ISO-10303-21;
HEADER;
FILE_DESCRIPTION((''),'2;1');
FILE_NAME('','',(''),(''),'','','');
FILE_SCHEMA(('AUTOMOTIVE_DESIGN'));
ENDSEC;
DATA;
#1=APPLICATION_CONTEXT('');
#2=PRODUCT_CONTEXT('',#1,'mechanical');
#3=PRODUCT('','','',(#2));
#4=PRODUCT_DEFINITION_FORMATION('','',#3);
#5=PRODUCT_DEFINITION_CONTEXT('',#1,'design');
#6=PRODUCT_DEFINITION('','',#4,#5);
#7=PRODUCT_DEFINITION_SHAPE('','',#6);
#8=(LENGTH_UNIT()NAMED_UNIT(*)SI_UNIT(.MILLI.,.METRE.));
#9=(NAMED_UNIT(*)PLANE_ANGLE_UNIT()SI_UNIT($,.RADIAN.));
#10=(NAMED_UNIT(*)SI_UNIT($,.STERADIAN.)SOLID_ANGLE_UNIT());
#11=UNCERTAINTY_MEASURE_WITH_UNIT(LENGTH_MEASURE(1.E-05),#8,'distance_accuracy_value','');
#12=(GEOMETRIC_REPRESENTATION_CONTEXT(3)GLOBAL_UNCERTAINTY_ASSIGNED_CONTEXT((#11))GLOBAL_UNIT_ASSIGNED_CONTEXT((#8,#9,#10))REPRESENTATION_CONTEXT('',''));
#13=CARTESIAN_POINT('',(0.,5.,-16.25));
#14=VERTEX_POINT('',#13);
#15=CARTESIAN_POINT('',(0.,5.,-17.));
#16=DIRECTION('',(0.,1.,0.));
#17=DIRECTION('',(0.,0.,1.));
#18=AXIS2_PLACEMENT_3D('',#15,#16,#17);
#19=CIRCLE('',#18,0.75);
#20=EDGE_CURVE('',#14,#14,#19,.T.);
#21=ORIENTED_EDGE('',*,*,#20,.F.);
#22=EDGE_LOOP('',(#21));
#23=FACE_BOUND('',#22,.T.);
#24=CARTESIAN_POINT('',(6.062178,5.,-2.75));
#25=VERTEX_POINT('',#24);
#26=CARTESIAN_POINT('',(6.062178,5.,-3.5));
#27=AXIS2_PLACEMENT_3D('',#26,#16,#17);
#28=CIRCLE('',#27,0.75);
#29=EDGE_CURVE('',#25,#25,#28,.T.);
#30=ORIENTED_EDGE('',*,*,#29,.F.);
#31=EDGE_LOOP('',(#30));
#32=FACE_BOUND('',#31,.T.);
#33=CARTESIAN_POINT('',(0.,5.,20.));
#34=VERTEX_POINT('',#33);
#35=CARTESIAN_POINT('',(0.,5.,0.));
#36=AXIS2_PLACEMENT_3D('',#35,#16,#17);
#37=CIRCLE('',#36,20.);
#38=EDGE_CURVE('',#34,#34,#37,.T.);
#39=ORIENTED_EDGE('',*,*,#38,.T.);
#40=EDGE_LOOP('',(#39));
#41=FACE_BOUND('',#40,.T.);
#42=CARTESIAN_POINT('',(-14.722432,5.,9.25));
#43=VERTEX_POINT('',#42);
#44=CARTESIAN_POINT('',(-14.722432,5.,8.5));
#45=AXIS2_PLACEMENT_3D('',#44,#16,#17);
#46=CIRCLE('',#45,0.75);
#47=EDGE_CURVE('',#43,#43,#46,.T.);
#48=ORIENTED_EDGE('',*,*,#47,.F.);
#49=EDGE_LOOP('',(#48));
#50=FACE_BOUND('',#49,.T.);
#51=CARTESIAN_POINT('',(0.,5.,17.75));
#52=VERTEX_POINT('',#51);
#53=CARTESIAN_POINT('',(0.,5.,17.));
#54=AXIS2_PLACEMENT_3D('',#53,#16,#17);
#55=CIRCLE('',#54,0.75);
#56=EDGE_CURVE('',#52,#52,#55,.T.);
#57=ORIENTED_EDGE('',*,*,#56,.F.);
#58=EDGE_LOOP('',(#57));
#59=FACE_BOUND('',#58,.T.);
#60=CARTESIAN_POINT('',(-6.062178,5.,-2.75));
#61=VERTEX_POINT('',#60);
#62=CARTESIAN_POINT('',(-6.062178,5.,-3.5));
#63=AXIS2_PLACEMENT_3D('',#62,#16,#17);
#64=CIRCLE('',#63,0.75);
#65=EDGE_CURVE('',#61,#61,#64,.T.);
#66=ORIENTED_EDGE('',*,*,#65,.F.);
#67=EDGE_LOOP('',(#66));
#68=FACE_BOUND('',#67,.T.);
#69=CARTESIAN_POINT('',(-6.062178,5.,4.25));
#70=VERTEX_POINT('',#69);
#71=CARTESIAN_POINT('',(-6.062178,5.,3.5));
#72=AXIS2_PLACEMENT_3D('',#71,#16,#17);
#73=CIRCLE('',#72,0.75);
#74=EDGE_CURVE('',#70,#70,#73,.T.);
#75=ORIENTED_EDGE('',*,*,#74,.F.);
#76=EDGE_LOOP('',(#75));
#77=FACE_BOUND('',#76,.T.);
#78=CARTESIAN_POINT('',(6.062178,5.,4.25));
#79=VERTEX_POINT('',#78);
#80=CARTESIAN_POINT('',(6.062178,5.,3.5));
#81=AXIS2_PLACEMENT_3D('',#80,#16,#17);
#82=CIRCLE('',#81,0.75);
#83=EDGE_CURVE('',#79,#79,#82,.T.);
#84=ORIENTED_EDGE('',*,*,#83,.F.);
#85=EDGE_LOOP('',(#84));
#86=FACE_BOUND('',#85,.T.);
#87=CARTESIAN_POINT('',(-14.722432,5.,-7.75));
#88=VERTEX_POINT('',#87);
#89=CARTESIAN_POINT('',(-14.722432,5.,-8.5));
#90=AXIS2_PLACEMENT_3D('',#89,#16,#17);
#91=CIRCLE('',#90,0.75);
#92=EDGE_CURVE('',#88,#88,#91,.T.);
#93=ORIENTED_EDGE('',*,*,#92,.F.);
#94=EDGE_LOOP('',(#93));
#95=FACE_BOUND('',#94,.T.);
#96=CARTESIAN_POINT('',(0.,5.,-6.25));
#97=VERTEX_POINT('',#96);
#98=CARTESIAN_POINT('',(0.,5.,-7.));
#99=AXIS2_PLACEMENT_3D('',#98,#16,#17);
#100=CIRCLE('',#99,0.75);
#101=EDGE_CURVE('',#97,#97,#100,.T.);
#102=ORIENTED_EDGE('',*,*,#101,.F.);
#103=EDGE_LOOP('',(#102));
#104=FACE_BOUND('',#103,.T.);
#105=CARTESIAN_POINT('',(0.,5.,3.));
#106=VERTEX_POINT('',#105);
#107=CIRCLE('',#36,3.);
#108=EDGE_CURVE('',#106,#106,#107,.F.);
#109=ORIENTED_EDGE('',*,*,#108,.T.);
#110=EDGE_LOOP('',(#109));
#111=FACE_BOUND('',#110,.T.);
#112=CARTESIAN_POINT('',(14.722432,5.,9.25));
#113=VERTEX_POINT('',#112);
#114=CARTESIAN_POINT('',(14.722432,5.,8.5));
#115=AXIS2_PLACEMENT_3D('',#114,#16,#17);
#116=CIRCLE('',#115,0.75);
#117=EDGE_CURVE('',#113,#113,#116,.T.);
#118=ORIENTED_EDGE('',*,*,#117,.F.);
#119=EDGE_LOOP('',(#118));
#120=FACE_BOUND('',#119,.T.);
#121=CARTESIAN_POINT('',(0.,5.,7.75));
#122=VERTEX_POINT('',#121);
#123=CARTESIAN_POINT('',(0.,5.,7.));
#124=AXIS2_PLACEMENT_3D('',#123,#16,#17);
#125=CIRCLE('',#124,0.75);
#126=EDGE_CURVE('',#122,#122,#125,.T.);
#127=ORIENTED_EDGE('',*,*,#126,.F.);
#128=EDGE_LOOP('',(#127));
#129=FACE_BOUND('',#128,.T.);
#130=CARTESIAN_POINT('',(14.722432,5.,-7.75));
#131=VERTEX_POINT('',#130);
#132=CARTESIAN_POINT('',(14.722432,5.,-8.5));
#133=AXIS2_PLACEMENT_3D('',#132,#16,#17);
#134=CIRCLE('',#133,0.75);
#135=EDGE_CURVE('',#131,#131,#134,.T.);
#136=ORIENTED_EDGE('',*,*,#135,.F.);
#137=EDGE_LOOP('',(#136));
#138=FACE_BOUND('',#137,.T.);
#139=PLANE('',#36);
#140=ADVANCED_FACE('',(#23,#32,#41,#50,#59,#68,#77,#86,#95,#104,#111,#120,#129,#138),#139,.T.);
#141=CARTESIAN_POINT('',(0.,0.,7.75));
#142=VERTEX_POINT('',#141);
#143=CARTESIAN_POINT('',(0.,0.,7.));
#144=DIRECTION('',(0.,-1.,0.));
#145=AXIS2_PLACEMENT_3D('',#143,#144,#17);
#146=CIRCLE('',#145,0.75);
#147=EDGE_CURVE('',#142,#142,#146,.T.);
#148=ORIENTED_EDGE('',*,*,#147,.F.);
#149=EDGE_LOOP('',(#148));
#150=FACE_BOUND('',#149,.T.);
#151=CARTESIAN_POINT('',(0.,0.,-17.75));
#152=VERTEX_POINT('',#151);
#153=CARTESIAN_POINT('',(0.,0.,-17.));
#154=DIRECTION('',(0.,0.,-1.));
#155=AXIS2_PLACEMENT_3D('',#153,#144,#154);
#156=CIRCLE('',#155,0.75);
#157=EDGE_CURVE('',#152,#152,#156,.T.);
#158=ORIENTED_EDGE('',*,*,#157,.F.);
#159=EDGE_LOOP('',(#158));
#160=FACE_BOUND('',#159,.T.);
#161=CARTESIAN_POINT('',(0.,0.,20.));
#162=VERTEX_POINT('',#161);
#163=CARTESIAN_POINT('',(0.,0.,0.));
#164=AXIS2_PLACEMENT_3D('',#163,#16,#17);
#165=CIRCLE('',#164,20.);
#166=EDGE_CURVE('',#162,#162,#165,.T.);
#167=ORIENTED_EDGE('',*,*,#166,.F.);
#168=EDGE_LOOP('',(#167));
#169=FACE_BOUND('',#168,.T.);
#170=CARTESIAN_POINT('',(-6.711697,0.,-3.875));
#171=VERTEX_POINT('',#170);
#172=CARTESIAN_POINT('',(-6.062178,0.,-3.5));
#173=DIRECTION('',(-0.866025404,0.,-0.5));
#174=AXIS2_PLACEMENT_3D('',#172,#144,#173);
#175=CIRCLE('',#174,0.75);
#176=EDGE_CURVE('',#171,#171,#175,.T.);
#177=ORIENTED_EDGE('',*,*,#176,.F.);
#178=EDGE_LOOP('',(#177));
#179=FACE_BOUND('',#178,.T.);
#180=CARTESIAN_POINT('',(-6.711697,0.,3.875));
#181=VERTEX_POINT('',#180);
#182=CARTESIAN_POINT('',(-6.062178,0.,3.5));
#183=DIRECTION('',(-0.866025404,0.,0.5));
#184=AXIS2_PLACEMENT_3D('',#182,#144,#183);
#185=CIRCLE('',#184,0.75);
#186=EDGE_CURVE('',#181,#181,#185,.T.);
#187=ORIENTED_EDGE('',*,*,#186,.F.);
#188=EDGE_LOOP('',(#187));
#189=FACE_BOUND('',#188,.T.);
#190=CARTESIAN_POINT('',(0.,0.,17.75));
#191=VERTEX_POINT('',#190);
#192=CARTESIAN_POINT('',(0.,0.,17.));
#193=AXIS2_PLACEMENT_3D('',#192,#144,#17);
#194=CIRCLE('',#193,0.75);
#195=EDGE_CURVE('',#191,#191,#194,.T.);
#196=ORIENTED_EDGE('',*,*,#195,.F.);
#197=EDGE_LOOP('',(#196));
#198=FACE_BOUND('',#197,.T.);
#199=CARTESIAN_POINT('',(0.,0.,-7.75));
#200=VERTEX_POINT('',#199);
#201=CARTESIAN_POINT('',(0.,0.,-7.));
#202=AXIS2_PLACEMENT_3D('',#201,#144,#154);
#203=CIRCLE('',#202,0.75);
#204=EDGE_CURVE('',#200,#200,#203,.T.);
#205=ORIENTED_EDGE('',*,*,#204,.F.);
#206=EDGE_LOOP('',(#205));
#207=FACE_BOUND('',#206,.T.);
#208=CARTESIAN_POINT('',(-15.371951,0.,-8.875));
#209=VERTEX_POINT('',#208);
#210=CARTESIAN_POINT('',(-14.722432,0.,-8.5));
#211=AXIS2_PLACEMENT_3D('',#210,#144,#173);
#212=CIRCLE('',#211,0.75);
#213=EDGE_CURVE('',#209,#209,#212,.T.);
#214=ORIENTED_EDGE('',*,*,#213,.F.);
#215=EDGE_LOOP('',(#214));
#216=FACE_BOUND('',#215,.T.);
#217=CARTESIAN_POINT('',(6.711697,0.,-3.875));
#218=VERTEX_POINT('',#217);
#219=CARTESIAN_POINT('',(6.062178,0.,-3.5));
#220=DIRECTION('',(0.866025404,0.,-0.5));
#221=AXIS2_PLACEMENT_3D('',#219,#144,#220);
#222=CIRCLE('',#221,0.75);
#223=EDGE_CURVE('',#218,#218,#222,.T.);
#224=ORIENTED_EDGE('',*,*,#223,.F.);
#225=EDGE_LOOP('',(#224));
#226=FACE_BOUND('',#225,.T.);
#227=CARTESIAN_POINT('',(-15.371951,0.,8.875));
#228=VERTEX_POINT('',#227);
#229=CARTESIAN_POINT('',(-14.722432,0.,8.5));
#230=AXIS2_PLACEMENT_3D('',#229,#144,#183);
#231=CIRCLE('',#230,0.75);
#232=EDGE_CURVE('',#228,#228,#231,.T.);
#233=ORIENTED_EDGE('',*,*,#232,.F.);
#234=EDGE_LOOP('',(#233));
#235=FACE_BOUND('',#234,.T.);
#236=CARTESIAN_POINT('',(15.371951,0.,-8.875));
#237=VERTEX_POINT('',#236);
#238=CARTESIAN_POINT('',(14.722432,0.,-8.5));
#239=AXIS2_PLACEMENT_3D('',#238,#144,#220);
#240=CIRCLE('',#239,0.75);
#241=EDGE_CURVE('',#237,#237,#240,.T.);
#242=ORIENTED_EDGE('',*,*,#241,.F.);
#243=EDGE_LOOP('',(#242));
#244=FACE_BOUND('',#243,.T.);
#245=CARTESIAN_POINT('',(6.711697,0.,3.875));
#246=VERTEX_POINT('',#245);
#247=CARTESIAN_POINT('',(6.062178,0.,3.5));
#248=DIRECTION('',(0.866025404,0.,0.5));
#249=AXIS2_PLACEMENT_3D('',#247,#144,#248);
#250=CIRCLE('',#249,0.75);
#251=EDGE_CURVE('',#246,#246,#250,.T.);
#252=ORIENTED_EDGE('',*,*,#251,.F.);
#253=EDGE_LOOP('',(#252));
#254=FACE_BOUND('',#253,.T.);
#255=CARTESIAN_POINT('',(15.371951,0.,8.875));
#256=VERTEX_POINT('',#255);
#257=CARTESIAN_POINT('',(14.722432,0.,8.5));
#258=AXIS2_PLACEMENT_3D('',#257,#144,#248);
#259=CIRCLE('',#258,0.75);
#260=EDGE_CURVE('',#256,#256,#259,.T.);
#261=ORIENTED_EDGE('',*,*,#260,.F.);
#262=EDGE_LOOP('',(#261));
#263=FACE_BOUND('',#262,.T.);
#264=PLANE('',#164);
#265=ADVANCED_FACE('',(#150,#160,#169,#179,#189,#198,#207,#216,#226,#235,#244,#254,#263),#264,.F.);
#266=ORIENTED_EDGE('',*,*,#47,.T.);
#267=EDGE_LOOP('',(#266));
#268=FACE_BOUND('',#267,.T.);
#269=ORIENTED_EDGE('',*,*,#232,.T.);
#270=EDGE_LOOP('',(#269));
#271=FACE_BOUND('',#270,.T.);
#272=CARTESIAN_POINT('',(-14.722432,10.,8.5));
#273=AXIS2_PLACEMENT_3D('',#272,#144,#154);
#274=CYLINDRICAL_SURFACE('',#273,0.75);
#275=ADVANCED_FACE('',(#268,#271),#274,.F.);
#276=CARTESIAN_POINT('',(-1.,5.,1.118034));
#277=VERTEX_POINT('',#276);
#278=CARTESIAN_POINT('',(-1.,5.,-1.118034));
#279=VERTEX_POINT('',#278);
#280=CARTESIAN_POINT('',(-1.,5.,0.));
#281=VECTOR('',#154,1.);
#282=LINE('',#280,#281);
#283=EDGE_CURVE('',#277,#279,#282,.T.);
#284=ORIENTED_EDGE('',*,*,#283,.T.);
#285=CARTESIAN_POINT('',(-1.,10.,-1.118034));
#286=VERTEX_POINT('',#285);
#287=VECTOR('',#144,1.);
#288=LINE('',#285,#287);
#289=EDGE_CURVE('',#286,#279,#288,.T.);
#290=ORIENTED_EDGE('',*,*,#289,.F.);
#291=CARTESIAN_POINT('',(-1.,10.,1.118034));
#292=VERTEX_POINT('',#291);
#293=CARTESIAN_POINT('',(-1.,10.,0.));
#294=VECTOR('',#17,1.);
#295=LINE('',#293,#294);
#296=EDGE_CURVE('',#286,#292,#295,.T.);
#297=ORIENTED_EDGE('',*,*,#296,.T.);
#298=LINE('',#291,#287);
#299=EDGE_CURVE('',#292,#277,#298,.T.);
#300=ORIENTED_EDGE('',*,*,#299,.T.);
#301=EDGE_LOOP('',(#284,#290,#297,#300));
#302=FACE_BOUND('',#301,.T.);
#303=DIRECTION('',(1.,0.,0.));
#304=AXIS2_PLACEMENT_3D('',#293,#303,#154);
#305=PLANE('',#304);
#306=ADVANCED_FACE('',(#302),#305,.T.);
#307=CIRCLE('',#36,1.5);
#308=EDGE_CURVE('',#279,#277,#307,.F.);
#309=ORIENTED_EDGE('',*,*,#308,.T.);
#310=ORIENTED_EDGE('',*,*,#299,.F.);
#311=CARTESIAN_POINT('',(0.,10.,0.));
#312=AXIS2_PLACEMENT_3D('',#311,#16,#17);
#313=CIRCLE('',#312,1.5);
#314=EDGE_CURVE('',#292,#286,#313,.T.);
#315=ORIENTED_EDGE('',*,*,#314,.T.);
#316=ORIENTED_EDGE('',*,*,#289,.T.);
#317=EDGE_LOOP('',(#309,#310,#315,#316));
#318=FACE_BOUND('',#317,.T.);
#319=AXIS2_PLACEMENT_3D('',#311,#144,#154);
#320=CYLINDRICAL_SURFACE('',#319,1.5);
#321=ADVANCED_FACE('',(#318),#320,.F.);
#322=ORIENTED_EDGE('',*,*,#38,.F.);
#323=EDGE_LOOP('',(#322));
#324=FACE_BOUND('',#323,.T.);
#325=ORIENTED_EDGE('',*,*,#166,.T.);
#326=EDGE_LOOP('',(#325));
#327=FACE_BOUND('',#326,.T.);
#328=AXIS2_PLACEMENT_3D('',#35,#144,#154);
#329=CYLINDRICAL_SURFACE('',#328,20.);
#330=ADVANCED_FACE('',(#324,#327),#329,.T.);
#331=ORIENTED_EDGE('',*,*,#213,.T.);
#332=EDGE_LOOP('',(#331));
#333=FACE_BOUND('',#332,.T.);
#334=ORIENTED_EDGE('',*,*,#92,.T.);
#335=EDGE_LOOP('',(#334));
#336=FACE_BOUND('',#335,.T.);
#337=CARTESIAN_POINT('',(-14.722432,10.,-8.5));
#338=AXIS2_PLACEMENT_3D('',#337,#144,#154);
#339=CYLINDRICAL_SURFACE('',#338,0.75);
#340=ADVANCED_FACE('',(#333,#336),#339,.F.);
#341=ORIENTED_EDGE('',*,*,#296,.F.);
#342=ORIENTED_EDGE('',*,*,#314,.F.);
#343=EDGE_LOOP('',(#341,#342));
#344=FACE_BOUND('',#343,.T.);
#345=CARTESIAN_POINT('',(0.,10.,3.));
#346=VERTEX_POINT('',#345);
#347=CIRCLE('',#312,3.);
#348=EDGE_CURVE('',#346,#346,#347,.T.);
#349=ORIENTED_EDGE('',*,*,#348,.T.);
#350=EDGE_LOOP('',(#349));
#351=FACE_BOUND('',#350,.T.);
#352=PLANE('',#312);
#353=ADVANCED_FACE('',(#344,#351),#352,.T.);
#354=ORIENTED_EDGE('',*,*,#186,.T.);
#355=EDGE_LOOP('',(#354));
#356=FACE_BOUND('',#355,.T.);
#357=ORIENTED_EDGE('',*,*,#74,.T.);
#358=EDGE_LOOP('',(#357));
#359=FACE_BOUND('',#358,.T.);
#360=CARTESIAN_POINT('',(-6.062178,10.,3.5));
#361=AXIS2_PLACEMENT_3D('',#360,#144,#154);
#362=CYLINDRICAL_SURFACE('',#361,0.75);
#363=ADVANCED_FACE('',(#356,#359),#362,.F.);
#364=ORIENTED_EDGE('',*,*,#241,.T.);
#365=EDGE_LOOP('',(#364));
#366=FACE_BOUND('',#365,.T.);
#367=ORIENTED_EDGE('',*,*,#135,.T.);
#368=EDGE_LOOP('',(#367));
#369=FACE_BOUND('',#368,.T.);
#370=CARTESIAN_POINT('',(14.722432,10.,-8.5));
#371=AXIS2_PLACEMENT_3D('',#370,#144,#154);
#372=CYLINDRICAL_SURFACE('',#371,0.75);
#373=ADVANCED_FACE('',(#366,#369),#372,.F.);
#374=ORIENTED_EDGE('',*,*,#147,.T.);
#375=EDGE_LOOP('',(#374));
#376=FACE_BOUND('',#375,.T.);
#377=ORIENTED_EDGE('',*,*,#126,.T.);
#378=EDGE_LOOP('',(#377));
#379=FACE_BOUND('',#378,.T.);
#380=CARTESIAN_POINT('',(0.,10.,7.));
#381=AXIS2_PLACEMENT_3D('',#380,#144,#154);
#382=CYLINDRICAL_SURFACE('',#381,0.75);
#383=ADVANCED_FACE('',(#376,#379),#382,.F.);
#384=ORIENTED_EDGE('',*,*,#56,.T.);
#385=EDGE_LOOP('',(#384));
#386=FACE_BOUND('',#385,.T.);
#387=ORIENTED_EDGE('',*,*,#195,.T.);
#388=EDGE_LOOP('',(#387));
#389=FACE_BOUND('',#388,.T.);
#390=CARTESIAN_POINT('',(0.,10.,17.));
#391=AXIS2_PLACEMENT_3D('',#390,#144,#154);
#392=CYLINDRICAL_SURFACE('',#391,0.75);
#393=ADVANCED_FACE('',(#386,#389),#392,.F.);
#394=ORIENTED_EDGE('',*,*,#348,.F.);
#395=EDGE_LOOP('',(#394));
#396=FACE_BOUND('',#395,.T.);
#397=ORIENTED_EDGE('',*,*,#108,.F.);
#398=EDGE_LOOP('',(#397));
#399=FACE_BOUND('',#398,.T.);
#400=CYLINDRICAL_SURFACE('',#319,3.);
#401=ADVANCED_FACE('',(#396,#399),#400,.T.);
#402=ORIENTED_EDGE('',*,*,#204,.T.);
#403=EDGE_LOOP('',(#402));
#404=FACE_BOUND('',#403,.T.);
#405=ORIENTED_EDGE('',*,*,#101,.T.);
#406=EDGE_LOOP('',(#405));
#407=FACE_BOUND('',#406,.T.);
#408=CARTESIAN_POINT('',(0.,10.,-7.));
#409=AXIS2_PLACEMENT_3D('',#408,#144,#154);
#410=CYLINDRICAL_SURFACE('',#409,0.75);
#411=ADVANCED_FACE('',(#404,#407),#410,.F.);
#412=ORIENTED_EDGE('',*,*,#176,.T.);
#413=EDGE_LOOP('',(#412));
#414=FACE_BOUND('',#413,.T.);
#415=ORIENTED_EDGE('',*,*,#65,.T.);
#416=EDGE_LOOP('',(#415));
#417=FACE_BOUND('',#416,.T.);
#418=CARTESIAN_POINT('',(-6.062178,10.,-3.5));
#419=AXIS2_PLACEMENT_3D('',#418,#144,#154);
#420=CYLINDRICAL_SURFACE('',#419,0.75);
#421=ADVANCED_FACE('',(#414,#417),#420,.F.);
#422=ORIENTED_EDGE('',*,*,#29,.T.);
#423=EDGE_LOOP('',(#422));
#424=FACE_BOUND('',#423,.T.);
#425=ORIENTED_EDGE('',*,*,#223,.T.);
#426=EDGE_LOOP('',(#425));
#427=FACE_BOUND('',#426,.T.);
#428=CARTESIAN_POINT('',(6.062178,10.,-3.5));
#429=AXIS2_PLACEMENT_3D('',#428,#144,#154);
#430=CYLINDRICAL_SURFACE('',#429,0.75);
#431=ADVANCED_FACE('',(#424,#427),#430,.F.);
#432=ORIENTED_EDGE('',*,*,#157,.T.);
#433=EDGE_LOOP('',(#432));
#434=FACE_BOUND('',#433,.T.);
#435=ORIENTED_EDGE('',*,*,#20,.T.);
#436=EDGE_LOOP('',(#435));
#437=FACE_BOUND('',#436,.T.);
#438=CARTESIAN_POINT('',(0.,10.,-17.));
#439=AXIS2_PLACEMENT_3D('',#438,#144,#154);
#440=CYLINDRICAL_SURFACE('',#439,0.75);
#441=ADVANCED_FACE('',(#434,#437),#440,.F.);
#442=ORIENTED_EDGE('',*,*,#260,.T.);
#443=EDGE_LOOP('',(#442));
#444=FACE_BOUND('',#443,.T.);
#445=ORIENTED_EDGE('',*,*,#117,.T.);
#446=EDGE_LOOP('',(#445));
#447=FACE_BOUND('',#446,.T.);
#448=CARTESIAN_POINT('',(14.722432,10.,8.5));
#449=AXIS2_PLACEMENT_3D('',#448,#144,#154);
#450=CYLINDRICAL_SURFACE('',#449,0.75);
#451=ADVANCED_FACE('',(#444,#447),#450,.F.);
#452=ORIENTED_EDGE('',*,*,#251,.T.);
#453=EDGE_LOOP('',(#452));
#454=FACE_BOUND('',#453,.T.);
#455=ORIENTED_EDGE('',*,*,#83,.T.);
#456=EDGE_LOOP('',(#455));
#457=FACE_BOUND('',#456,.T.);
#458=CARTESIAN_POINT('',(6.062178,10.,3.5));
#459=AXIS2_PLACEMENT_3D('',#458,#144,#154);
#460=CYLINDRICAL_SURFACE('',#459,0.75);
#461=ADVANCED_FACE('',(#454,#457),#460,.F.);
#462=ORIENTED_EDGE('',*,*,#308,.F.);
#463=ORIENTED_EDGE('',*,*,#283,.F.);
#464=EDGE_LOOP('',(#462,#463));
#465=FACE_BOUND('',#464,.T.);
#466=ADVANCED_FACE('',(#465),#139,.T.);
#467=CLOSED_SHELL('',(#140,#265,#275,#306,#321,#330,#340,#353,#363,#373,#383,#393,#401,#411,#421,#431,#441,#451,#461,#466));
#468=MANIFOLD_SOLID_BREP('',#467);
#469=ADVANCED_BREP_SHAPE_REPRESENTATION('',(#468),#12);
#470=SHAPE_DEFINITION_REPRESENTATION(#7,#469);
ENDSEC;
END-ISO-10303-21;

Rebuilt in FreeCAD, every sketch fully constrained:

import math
import FreeCAD as App
import Part
import Sketcher

V = App.Vector

doc = App.newDocument("Part")
body = doc.addObject("PartDesign::Body", "Body")

# Sketch on XZ plane
sketch1 = body.newObject("Sketcher::SketchObject", "Sketch")
sketch1.AttachmentSupport = (doc.getObject("XZ_Plane"), [""])
sketch1.MapMode = "FlatFace"
sketch1.addGeometry(Part.Circle(V(0, 0, 0), V(0, 0, 1), 20), False)
sketch1.addConstraint([
    Sketcher.Constraint("Coincident", 0, 3, -1, 1),
    Sketcher.Constraint("Diameter", 0, 40.0),
])
pad1 = body.newObject("PartDesign::Pad", "Pad")
pad1.Profile = sketch1
pad1.Length = 5
pad1.Reversed = True

# Sketch on XZ plane
sketch2 = body.newObject("Sketcher::SketchObject", "Sketch001")
sketch2.AttachmentSupport = (doc.getObject("XZ_Plane"), [""])
sketch2.MapMode = "FlatFace"
sketch2.addGeometry([
    Part.Circle(V(0, 0, 0), V(0, 0, 1), 3),
    Part.ArcOfCircle(Part.Circle(V(0, 0, 0), V(0, 0, 1), 1.5), math.radians(-132), math.radians(132)),
    Part.LineSegment(V(-1, 1.1, 0), V(-1, -1.1, 0)),
], False)
sketch2.addConstraint([
    Sketcher.Constraint("Coincident", 1, 1, 2, 2),
    Sketcher.Constraint("Coincident", 2, 1, 1, 2),
    Sketcher.Constraint("Vertical", 2),
    Sketcher.Constraint("Coincident", 0, 3, -1, 1),
    Sketcher.Constraint("Coincident", 1, 3, -1, 1),
    Sketcher.Constraint("Diameter", 0, 6.0),
    Sketcher.Constraint("Radius", 1, 1.5),
    Sketcher.Constraint("DistanceX", 1, 1, -1, 1, 1.0),
])
pad2 = body.newObject("PartDesign::Pad", "Pad001")
pad2.Profile = sketch2
pad2.Length = 10
pad2.Reversed = True

# Sketch on XZ plane
sketch3 = body.newObject("Sketcher::SketchObject", "Sketch002")
sketch3.AttachmentSupport = (doc.getObject("XZ_Plane"), [""])
sketch3.MapMode = "FlatFace"
sketch3.addGeometry([
    Part.Circle(V(0, -7, 0), V(0, 0, 1), 0.8),
    Part.Circle(V(0, -17, 0), V(0, 0, 1), 0.8),
], False)
sketch3.addConstraint([
    Sketcher.Constraint("Equal", 0, 1),
    Sketcher.Constraint("PointOnObject", 0, 3, -2),
    Sketcher.Constraint("PointOnObject", 1, 3, -2),
    Sketcher.Constraint("Diameter", 0, 1.5),
    Sketcher.Constraint("DistanceY", 0, 3, -1, 1, 7.0),
    Sketcher.Constraint("DistanceY", 1, 3, -1, 1, 17.0),
])
pocket1 = body.newObject("PartDesign::Pocket", "Pocket")
pocket1.Profile = sketch3
pocket1.Type = "ThroughAll"
doc.recompute()

polarpattern = body.newObject("PartDesign::PolarPattern", "PolarPattern")
polarpattern.Originals = [pocket1]
polarpattern.Axis = (doc.getObject("Y_Axis"), [""])
polarpattern.Angle = 360
polarpattern.Occurrences = 6
body.Tip = polarpattern

doc.recompute()
